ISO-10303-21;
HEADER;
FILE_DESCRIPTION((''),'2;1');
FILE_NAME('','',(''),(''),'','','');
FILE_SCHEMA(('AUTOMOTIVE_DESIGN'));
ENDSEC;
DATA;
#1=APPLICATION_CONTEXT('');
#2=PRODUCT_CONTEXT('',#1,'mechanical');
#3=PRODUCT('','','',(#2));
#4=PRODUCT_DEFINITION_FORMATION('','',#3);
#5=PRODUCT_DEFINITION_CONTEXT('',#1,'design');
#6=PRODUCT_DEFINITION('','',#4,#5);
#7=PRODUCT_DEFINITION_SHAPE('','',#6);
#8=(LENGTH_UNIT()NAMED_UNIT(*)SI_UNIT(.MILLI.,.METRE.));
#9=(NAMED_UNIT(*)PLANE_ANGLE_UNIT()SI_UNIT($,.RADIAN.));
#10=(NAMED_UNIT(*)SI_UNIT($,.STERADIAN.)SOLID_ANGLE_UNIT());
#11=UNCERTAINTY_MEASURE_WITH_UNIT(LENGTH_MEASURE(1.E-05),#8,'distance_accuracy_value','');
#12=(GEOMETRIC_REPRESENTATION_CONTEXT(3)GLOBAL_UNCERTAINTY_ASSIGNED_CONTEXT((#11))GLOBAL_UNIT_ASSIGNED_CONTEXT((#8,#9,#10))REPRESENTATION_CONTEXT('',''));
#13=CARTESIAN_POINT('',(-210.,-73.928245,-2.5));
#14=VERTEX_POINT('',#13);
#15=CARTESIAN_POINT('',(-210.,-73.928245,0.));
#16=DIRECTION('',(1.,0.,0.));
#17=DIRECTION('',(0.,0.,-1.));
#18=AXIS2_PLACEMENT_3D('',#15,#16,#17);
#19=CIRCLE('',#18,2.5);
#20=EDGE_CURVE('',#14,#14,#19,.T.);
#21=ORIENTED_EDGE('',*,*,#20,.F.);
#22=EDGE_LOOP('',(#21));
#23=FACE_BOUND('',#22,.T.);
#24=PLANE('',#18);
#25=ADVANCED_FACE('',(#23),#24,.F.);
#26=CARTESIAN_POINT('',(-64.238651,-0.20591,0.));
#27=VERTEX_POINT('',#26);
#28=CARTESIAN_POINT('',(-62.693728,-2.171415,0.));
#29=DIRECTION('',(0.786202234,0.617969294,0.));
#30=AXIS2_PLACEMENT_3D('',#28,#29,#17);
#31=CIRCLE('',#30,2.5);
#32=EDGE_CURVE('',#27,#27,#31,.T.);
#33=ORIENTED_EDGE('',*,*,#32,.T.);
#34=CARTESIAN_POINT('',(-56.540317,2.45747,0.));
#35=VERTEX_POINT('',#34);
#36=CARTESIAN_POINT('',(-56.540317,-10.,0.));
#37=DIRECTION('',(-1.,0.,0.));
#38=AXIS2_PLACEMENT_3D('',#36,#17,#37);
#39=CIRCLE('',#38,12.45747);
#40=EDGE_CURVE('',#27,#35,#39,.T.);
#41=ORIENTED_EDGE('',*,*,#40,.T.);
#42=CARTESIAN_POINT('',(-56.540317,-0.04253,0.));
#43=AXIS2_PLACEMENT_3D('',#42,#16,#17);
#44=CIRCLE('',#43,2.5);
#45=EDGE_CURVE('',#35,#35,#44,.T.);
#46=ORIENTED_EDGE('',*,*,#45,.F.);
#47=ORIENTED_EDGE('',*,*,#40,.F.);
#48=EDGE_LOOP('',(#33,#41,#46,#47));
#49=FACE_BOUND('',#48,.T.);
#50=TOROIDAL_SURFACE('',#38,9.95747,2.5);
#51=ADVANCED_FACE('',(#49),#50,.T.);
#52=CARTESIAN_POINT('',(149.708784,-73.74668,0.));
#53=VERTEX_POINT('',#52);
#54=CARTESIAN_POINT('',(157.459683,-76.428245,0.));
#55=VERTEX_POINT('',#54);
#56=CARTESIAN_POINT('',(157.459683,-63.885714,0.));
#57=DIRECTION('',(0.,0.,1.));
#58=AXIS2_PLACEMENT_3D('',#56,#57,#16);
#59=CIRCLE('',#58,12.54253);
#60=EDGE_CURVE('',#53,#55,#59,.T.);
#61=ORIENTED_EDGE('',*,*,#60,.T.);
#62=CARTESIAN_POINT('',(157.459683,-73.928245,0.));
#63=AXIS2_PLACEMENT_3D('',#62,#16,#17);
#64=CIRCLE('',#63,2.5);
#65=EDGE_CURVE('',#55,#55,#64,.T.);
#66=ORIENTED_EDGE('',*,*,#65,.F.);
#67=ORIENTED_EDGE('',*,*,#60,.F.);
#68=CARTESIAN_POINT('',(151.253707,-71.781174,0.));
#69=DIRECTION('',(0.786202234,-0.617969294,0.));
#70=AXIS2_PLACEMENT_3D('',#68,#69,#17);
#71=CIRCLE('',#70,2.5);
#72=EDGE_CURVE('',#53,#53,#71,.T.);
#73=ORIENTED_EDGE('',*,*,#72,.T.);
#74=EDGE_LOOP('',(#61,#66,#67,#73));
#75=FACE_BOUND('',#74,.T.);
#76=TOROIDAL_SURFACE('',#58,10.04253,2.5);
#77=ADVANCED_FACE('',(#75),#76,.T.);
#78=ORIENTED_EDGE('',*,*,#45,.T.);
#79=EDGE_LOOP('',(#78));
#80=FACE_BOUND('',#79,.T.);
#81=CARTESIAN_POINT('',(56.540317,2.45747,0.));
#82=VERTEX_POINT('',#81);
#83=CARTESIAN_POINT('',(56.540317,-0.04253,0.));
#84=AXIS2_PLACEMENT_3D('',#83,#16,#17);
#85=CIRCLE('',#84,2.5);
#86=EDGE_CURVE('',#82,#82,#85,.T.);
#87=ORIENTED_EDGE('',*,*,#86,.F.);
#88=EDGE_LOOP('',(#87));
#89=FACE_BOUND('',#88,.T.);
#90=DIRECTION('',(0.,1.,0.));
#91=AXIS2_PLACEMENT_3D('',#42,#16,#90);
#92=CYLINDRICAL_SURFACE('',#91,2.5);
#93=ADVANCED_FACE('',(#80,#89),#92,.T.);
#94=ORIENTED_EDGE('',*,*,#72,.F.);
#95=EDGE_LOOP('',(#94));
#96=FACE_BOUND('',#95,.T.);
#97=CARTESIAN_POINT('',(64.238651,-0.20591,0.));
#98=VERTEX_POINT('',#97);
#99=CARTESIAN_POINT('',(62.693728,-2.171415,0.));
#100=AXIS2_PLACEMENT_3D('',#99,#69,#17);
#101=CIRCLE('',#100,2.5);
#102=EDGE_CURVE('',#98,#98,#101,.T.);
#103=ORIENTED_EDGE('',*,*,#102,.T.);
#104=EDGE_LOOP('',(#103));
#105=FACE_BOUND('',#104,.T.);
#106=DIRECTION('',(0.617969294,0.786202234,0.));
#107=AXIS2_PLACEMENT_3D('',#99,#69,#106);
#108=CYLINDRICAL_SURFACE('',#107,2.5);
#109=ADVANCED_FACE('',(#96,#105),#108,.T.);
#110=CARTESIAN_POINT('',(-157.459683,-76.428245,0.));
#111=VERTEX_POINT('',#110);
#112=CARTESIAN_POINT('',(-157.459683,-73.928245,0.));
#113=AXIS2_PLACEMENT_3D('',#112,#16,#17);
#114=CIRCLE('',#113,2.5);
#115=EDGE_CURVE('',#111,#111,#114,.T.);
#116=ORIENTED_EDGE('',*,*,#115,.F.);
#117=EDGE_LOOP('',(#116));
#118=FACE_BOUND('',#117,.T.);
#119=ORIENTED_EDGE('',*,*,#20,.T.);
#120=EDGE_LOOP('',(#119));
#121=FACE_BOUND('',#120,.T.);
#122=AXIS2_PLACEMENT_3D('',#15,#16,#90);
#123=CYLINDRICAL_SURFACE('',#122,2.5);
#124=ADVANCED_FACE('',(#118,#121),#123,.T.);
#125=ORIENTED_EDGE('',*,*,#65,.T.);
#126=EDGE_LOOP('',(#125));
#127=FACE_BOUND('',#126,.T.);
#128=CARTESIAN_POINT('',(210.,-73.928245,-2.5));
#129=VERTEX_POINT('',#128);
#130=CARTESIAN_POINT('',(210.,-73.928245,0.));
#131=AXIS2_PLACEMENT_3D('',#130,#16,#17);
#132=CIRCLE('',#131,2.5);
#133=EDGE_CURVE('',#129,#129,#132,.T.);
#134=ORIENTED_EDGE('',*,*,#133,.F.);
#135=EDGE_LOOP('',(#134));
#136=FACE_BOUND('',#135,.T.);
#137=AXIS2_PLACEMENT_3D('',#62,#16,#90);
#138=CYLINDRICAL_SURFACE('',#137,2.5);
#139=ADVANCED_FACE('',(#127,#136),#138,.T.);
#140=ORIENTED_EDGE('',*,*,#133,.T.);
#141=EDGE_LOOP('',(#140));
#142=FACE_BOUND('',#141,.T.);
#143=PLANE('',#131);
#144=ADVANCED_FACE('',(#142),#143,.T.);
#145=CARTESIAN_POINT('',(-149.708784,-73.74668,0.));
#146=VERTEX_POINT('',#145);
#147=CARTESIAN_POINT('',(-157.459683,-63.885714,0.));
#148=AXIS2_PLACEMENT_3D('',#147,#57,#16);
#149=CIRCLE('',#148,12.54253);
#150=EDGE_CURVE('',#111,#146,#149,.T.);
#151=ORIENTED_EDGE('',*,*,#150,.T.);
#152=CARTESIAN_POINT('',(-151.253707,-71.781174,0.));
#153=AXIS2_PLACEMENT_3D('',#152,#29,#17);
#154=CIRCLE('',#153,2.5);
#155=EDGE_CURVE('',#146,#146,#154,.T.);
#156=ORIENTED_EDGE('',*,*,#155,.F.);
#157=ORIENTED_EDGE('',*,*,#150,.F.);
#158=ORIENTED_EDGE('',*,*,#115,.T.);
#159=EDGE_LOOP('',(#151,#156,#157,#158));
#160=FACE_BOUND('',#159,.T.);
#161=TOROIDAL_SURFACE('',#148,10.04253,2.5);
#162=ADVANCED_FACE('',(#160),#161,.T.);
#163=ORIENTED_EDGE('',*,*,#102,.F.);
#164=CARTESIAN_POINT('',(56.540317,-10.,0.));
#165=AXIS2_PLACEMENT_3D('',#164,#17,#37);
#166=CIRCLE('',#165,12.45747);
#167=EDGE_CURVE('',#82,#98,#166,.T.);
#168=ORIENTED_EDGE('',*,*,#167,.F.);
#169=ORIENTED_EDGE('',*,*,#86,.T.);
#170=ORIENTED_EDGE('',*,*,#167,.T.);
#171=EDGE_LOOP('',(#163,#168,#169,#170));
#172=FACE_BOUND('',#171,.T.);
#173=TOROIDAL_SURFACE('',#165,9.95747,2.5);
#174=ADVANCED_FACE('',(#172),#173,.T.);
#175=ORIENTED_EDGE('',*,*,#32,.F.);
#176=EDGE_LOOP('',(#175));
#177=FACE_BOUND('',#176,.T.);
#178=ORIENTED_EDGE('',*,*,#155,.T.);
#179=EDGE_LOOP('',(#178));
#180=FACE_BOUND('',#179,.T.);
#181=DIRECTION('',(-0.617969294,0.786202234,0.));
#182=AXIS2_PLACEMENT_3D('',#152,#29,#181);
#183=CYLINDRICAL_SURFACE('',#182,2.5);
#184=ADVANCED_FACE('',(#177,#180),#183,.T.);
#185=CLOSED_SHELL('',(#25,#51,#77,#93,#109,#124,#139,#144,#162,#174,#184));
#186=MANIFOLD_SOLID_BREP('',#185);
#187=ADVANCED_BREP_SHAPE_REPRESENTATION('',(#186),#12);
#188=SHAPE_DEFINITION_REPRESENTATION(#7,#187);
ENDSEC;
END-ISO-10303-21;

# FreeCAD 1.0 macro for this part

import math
import FreeCAD as App
import Part
import Sketcher
from FreeCAD import Vector

doc = App.newDocument("Part")
body = doc.addObject("PartDesign::Body", "Body")

# Sketch on YZ plane
sketch1 = body.newObject("Sketcher::SketchObject", "Sketch")
sketch1.AttachmentSupport = (doc.getObject("YZ_Plane"), [""])
sketch1.MapMode = "FlatFace"
sketch1.AttachmentOffset = App.Placement(Vector(0, 0, 210), App.Rotation())
sketch1.addGeometry(Part.Circle(Vector(-73.9, 0, 0), Vector(0, 0, 1), 2.5), False)
sketch1.addConstraint([
    Sketcher.Constraint("PointOnObject", 0, 3, -1),
    Sketcher.Constraint("Diameter", 0, 5.0),
    Sketcher.Constraint("DistanceX", 0, 3, -1, 1, 73.928245),
])

# Sketch on XY plane
sketch2 = body.newObject("Sketcher::SketchObject", "Sketch001")
sketch2.AttachmentSupport = (doc.getObject("XY_Plane"), [""])
sketch2.MapMode = "FlatFace"
sketch2.addGeometry([
    Part.LineSegment(Vector(210, -74, 0), Vector(157, -74, 0)),  # 0
    Part.ArcOfCircle(Part.Circle(Vector(157, -64, 0), Vector(0, 0, 1), 10), math.radians(-128), math.radians(-90)),  # 1
    Part.LineSegment(Vector(151, -72, 0), Vector(63, -2, 0)),  # 2
    Part.ArcOfCircle(Part.Circle(Vector(57, -10, 0), Vector(0, 0, 1), 10), math.radians(52), math.radians(90)),  # 3
    Part.LineSegment(Vector(57, 0, 0), Vector(-57, 0, 0)),  # 4
    Part.ArcOfCircle(Part.Circle(Vector(-57, -10, 0), Vector(0, 0, 1), 10), math.radians(90), math.radians(128)),  # 5
    Part.LineSegment(Vector(-63, -2, 0), Vector(-151, -72, 0)),  # 6
    Part.ArcOfCircle(Part.Circle(Vector(-157, -64, 0), Vector(0, 0, 1), 10), math.radians(-90), math.radians(-52)),  # 7
    Part.LineSegment(Vector(-157, -74, 0), Vector(-210, -74, 0)),  # 8
], False)
sketch2.addConstraint([
    Sketcher.Constraint("Tangent", 0, 2, 1, 2),
    Sketcher.Constraint("Tangent", 1, 1, 2, 1),
    Sketcher.Constraint("Tangent", 2, 2, 3, 1),
    Sketcher.Constraint("Tangent", 3, 2, 4, 1),
    Sketcher.Constraint("Tangent", 4, 2, 5, 1),
    Sketcher.Constraint("Tangent", 5, 2, 6, 1),
    Sketcher.Constraint("Tangent", 6, 2, 7, 2),
    Sketcher.Constraint("Tangent", 7, 1, 8, 1),
    Sketcher.Constraint("Horizontal", 0),
    Sketcher.Constraint("Horizontal", 4),
    Sketcher.Constraint("Horizontal", 8),
    Sketcher.Constraint("Equal", 1, 3),
    Sketcher.Constraint("Equal", 3, 5),
    Sketcher.Constraint("Equal", 5, 7),
    Sketcher.Constraint("Symmetric", 3, 2, 4, 2, -1, 1),
    Sketcher.Constraint("Symmetric", 1, 3, 7, 3, -2),
    Sketcher.Constraint("Equal", 0, 8),
    Sketcher.Constraint("Radius", 1, 10.0),
    Sketcher.Constraint("DistanceX", -1, 1, 0, 1, 210.0),
    Sketcher.Constraint("DistanceX", 5, 3, 1, 3, 214.0),
    Sketcher.Constraint("DistanceX", 0, 2, 0, 1, 52.540317),
    Sketcher.Constraint("DistanceX", -1, 1, 1, 1, 151.27999),
])
doc.recompute()

additivepipe = body.newObject("PartDesign::AdditivePipe", "AdditivePipe")
additivepipe.Profile = sketch1
additivepipe.Spine = (sketch2, ["Edge1", "Edge2", "Edge3", "Edge4", "Edge5", "Edge6", "Edge7", "Edge8", "Edge9"])

doc.recompute()
